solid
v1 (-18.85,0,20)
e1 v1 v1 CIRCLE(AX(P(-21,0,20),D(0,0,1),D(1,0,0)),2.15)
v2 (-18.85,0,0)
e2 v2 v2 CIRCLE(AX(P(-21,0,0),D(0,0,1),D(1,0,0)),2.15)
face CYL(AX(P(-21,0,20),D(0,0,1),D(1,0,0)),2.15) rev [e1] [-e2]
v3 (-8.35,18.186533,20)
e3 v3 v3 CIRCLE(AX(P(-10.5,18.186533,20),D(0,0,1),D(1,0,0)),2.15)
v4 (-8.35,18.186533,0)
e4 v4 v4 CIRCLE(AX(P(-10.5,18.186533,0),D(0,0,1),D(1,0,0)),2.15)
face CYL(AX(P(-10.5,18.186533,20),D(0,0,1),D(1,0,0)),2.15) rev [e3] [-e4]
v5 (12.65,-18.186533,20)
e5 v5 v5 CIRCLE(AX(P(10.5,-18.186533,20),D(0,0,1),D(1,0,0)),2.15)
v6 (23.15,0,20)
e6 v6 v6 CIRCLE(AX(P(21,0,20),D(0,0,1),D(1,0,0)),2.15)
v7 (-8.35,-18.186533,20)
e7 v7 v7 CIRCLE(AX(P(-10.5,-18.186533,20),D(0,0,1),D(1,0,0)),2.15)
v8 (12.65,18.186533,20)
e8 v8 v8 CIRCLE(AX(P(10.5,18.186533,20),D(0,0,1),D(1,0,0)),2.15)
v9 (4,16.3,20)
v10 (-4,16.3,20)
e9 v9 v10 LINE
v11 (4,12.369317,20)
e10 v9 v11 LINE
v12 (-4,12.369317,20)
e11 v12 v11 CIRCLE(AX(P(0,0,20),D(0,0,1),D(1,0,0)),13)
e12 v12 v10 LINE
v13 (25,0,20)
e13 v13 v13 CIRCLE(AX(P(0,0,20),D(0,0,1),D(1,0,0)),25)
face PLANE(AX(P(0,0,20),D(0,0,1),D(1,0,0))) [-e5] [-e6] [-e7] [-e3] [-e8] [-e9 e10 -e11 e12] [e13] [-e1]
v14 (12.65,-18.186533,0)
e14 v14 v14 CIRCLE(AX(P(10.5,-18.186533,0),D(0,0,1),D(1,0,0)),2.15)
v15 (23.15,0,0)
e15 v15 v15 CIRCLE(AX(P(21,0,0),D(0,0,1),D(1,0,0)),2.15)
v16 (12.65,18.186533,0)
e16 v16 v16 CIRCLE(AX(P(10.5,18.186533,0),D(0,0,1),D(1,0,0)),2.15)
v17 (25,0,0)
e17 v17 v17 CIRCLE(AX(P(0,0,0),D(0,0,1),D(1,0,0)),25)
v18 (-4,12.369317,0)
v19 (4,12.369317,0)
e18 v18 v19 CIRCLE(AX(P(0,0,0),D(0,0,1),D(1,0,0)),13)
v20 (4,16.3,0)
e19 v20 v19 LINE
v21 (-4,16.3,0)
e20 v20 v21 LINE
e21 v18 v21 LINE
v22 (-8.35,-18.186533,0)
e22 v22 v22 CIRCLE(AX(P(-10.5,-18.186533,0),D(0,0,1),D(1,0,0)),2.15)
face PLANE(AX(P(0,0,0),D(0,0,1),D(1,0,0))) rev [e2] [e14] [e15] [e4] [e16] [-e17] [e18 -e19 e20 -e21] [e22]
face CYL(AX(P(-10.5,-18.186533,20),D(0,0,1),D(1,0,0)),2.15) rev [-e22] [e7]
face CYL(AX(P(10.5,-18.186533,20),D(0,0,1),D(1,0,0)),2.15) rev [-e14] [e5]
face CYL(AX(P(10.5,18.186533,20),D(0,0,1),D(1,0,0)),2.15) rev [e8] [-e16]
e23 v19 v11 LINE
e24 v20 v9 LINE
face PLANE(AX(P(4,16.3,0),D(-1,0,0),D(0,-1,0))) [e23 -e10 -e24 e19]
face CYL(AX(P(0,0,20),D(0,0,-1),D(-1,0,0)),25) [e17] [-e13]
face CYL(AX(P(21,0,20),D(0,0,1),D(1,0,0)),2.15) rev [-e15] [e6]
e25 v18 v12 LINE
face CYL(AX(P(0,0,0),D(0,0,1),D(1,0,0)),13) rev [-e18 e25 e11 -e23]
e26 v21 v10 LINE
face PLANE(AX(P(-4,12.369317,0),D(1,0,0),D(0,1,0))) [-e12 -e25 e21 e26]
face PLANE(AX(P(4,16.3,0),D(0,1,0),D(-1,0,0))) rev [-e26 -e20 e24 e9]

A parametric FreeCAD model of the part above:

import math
import FreeCAD as App
import Part
import Sketcher

V = App.Vector

doc = App.newDocument("Part")
params = doc.addObject("Spreadsheet::Sheet", "Params")
for row, (alias, value) in enumerate([
    ("sketch1_diameter", "50 mm"),
    ("pad1_length", "20 mm"),
    ("sketch2_radius", "13 mm"),
    ("sketch2_width", "8 mm"),
    ("sketch3_diameter", "4.3 mm"),
    ("hole_diameter", "4.3 mm"),
], start=1):
    params.set(f"A{row}", alias)
    params.set(f"B{row}", "=" + value)
    params.setAlias(f"B{row}", alias)

body = doc.addObject("PartDesign::Body", "Body")

sketch1 = doc.addObject("Sketcher::SketchObject", "Sketch")
body.addObject(sketch1)
sketch1.AttachmentSupport = (doc.XY_Plane, [""])
sketch1.MapMode = "FlatFace"
sketch1.addGeometry(Part.Circle(V(0, 0, 0), V(0, 0, 1), 25), False)
sketch1.addConstraint([
    Sketcher.Constraint("Coincident", 0, 3, -1, 1),
    Sketcher.Constraint("Diameter", 0, 50.0),
])
sketch1.setExpression("Constraints[1]", "Params.sketch1_diameter")
pad1 = doc.addObject("PartDesign::Pad", "Pad")
body.addObject(pad1)
pad1.Profile = sketch1
pad1.setExpression("Length", "Params.pad1_length")

sketch2 = doc.addObject("Sketcher::SketchObject", "Sketch001")
body.addObject(sketch2)
sketch2.AttachmentSupport = (doc.XY_Plane, [""])
sketch2.MapMode = "FlatFace"
sketch2.AttachmentOffset = App.Placement(V(0, 0, 20), App.Rotation())
sketch2.addGeometry([
    Part.LineSegment(V(-4, 16.3, 0), V(-4, 12.4, 0)),
    Part.ArcOfCircle(Part.Circle(V(0, 0, 0), V(0, 0, 1), 13), math.radians(108), math.radians(432)),
    Part.LineSegment(V(4, 12.4, 0), V(4, 16.3, 0)),
    Part.LineSegment(V(4, 16.3, 0), V(-4, 16.3, 0)),
], False)
sketch2.addConstraint([
    Sketcher.Constraint("Coincident", 0, 2, 1, 1),
    Sketcher.Constraint("Coincident", 1, 2, 2, 1),
    Sketcher.Constraint("Coincident", 2, 2, 3, 1),
    Sketcher.Constraint("Coincident", 3, 2, 0, 1),
    Sketcher.Constraint("Vertical", 0),
    Sketcher.Constraint("Vertical", 2),
    Sketcher.Constraint("Horizontal", 3),
    Sketcher.Constraint("Coincident", 1, 3, -1, 1),
    Sketcher.Constraint("Horizontal", 0, 2, 1, 2),
    Sketcher.Constraint("Radius", 1, 13.0),
    Sketcher.Constraint("DistanceX", 3, 2, 3, 1, 8.0),
    Sketcher.Constraint("DistanceY", -1, 1, 2, 2, 16.3),
])
sketch2.setExpression("Constraints[9]", "Params.sketch2_radius")
sketch2.setExpression("Constraints[10]", "Params.sketch2_width")
pocket1 = doc.addObject("PartDesign::Pocket", "Pocket")
body.addObject(pocket1)
pocket1.Profile = sketch2
pocket1.Type = "ThroughAll"

sketch3 = doc.addObject("Sketcher::SketchObject", "Sketch002")
body.addObject(sketch3)
sketch3.AttachmentSupport = (doc.XY_Plane, [""])
sketch3.MapMode = "FlatFace"
sketch3.AttachmentOffset = App.Placement(V(0, 0, 20), App.Rotation())
sketch3.addGeometry([
    Part.Circle(V(21, 0, 0), V(0, 0, 1), 2.1),
    Part.Circle(V(10.5, -18.2, 0), V(0, 0, 1), 2.1),
    Part.Circle(V(-10.5, -18.2, 0), V(0, 0, 1), 2.1),
    Part.Circle(V(-21, 0, 0), V(0, 0, 1), 2.1),
    Part.Circle(V(-10.5, 18.2, 0), V(0, 0, 1), 2.1),
    Part.Circle(V(10.5, 18.2, 0), V(0, 0, 1), 2.1),
], False)
sketch3.addConstraint([
    Sketcher.Constraint("Equal", 0, 1),
    Sketcher.Constraint("Equal", 1, 2),
    Sketcher.Constraint("Equal", 2, 3),
    Sketcher.Constraint("Equal", 3, 4),
    Sketcher.Constraint("Equal", 4, 5),
    Sketcher.Constraint("Symmetric", 0, 3, 3, 3, -1, 1),
    Sketcher.Constraint("Symmetric", 1, 3, 4, 3, -1, 1),
    Sketcher.Constraint("Symmetric", 2, 3, 5, 3, -1, 1),
    Sketcher.Constraint("Symmetric", 1, 3, 2, 3, -2),
    Sketcher.Constraint("PointOnObject", 0, 3, -1),
    Sketcher.Constraint("Diameter", 0, 4.3),
    Sketcher.Constraint("DistanceX", -1, 1, 0, 3, 21.0),
    Sketcher.Constraint("DistanceX", 2, 3, 1, 3, 21.0),
    Sketcher.Constraint("DistanceY", 1, 3, -1, 1, 18.186533),
])
sketch3.setExpression("Constraints[10]", "Params.sketch3_diameter")
doc.recompute()
hole = doc.addObject("PartDesign::Hole", "Hole")
body.addObject(hole)
hole.Profile = sketch3
hole.ThreadType = "None"
hole.setExpression("Diameter", "Params.hole_diameter")
hole.DepthType = "ThroughAll"

doc.recompute()
